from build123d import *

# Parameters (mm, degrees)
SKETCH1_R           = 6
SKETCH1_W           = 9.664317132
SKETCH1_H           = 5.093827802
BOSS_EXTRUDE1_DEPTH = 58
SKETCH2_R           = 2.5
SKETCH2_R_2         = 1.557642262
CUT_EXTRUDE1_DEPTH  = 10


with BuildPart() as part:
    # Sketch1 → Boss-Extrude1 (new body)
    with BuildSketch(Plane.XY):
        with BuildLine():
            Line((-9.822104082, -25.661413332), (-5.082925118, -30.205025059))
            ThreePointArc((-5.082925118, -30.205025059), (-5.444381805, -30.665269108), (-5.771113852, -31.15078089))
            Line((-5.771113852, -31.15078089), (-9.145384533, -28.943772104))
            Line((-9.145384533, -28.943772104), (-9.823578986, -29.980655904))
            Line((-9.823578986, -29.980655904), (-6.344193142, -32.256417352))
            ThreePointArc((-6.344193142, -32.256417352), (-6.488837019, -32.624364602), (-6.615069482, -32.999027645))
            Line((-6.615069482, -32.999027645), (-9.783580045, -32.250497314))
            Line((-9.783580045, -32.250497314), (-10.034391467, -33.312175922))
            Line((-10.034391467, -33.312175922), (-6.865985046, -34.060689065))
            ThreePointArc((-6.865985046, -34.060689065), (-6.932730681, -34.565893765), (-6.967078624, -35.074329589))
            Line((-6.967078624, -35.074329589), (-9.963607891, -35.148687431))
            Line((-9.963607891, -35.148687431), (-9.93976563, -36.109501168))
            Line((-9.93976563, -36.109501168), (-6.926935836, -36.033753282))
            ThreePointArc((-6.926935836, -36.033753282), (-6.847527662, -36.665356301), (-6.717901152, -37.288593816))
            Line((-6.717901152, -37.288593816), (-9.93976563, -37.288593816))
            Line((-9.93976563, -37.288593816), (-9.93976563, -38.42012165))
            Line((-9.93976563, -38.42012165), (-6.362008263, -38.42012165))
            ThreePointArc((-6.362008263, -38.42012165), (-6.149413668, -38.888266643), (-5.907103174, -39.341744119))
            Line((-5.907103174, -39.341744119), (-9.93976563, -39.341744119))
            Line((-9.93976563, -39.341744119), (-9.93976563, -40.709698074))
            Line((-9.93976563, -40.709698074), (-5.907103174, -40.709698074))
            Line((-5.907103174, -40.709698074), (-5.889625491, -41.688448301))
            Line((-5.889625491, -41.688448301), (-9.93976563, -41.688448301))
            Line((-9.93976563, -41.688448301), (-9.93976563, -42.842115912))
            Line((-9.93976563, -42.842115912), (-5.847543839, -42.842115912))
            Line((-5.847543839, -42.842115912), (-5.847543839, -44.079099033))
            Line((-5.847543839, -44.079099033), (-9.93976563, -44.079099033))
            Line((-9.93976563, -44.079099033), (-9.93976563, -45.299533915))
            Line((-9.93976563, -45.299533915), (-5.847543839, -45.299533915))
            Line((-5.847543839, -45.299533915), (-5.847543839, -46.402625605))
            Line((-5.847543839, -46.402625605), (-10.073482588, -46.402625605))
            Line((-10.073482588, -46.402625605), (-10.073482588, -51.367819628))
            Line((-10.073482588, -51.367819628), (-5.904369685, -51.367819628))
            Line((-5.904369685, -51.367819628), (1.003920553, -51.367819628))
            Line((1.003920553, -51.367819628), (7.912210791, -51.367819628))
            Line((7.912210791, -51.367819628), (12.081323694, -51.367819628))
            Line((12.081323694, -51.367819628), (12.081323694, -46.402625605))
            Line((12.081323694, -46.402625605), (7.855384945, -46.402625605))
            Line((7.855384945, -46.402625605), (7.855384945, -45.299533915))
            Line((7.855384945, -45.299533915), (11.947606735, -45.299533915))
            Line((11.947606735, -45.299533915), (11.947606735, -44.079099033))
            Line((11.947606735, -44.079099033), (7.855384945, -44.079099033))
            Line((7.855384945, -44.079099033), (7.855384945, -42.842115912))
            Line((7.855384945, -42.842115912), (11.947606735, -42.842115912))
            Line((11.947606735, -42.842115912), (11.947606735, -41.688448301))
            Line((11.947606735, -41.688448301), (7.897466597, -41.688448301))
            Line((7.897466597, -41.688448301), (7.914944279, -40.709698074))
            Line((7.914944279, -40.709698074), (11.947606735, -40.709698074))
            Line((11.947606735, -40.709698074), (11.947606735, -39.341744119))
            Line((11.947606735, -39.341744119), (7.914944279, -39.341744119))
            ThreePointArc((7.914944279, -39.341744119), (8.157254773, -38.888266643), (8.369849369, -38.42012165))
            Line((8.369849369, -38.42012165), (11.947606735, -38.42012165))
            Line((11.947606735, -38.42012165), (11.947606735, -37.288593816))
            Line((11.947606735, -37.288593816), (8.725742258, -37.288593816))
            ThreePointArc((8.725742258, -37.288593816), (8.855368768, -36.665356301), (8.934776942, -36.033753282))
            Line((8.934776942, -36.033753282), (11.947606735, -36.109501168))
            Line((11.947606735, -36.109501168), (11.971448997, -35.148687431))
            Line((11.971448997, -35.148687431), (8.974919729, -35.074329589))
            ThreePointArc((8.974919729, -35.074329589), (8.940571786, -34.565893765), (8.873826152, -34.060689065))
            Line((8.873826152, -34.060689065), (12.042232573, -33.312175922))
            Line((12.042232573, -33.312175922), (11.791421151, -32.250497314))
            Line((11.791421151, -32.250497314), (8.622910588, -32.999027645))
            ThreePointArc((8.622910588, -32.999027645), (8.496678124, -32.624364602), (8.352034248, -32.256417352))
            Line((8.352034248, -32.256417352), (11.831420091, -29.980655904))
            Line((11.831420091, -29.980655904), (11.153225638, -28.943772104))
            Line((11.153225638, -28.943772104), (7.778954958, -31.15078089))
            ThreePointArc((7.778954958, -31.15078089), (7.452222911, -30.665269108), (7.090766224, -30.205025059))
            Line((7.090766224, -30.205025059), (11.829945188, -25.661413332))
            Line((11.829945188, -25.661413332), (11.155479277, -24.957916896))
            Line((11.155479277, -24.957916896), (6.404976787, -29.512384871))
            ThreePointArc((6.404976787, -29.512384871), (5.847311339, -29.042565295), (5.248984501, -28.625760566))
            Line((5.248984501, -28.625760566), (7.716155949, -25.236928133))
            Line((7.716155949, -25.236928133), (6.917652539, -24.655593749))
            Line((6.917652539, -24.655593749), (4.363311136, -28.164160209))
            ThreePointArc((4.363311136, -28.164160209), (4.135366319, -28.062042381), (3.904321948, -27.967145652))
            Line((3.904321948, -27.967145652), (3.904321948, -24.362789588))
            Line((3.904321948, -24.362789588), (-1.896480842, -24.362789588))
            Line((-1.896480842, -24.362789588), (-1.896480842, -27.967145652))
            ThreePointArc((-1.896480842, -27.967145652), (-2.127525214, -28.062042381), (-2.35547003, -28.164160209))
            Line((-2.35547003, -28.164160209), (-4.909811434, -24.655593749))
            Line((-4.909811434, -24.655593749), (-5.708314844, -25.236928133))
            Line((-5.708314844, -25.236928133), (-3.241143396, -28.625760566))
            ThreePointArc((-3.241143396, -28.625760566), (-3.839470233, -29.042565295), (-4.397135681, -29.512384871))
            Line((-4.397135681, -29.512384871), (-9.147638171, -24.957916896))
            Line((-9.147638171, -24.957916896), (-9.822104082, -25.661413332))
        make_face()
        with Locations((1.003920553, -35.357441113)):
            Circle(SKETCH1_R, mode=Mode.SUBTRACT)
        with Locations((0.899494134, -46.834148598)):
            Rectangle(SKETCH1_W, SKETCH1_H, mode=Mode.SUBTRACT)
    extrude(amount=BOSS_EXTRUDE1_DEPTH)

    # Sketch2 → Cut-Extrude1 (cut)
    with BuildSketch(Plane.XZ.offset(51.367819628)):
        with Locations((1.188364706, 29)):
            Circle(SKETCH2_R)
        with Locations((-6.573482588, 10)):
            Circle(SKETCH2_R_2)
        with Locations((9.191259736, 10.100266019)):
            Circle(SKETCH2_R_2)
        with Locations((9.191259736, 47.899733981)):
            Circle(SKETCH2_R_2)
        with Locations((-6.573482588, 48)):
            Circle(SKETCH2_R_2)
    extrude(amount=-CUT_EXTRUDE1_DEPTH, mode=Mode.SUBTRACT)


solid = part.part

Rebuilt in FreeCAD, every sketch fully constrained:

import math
import FreeCAD as App
import Part
import Sketcher

doc = App.newDocument("Part")
body = doc.addObject("PartDesign::Body", "Body")

# Sketch on XY plane
sketch1 = doc.addObject("Sketcher::SketchObject", "Sketch")
body.addObject(sketch1)
sketch1.AttachmentSupport = (doc.XY_Plane, [""])
sketch1.MapMode = "FlatFace"
sketch1.addGeometry([
    Part.LineSegment(App.Vector(-9.82, -25.66, 0), App.Vector(-5.08, -30.21, 0)),  # 0
    Part.ArcOfCircle(Part.Circle(App.Vector(1, -35.36, 0), App.Vector(0, 0, 1), 7.97), math.radians(139.75), math.radians(148.16)),  # 1
    Part.LineSegment(App.Vector(-5.77, -31.15, 0), App.Vector(-9.15, -28.94, 0)),  # 2
    Part.LineSegment(App.Vector(-9.15, -28.94, 0), App.Vector(-9.82, -29.98, 0)),  # 3
    Part.LineSegment(App.Vector(-9.82, -29.98, 0), App.Vector(-6.34, -32.26, 0)),  # 4
    Part.ArcOfCircle(Part.Circle(App.Vector(1, -35.36, 0), App.Vector(0, 0, 1), 7.98), math.radians(157.12), math.radians(162.8)),  # 5
    Part.LineSegment(App.Vector(-6.62, -33, 0), App.Vector(-9.78, -32.25, 0)),  # 6
    Part.LineSegment(App.Vector(-9.78, -32.25, 0), App.Vector(-10.03, -33.31, 0)),  # 7
    Part.LineSegment(App.Vector(-10.03, -33.31, 0), App.Vector(-6.87, -34.06, 0)),  # 8
    Part.ArcOfCircle(Part.Circle(App.Vector(1, -35.36, 0), App.Vector(0, 0, 1), 7.98), math.radians(170.64), math.radians(177.97)),  # 9
    Part.LineSegment(App.Vector(-6.97, -35.07, 0), App.Vector(-9.96, -35.15, 0)),  # 10
    Part.LineSegment(App.Vector(-9.96, -35.15, 0), App.Vector(-9.94, -36.11, 0)),  # 11
    Part.LineSegment(App.Vector(-9.94, -36.11, 0), App.Vector(-6.93, -36.03, 0)),  # 12
    Part.ArcOfCircle(Part.Circle(App.Vector(1, -35.36, 0), App.Vector(0, 0, 1), 7.96), math.radians(-175.13), math.radians(-165.96)),  # 13
    Part.LineSegment(App.Vector(-6.72, -37.29, 0), App.Vector(-9.94, -37.29, 0)),  # 14
    Part.LineSegment(App.Vector(-9.94, -37.29, 0), App.Vector(-9.94, -38.42, 0)),  # 15
    Part.LineSegment(App.Vector(-9.94, -38.42, 0), App.Vector(-6.36, -38.42, 0)),  # 16
    Part.ArcOfCircle(Part.Circle(App.Vector(1, -35.36, 0), App.Vector(0, 0, 1), 7.98), math.radians(-157.42), math.radians(-150.04)),  # 17
    Part.LineSegment(App.Vector(-5.91, -39.34, 0), App.Vector(-9.94, -39.34, 0)),  # 18
    Part.LineSegment(App.Vector(-9.94, -39.34, 0), App.Vector(-9.94, -40.71, 0)),  # 19
    Part.LineSegment(App.Vector(-9.94, -40.71, 0), App.Vector(-5.91, -40.71, 0)),  # 20
    Part.LineSegment(App.Vector(-5.91, -40.71, 0), App.Vector(-5.89, -41.69, 0)),  # 21
    Part.LineSegment(App.Vector(-5.89, -41.69, 0), App.Vector(-9.94, -41.69, 0)),  # 22
    Part.LineSegment(App.Vector(-9.94, -41.69, 0), App.Vector(-9.94, -42.84, 0)),  # 23
    Part.LineSegment(App.Vector(-9.94, -42.84, 0), App.Vector(-5.85, -42.84, 0)),  # 24
    Part.LineSegment(App.Vector(-5.85, -42.84, 0), App.Vector(-5.85, -44.08, 0)),  # 25
    Part.LineSegment(App.Vector(-5.85, -44.08, 0), App.Vector(-9.94, -44.08, 0)),  # 26
    Part.LineSegment(App.Vector(-9.94, -44.08, 0), App.Vector(-9.94, -45.3, 0)),  # 27
    Part.LineSegment(App.Vector(-9.94, -45.3, 0), App.Vector(-5.85, -45.3, 0)),  # 28
    Part.LineSegment(App.Vector(-5.85, -45.3, 0), App.Vector(-5.85, -46.4, 0)),  # 29
    Part.LineSegment(App.Vector(-5.85, -46.4, 0), App.Vector(-10.07, -46.4, 0)),  # 30
    Part.LineSegment(App.Vector(-10.07, -46.4, 0), App.Vector(-10.07, -51.37, 0)),  # 31
    Part.LineSegment(App.Vector(-10.07, -51.37, 0), App.Vector(12.08, -51.37, 0)),  # 32
    Part.LineSegment(App.Vector(12.08, -51.37, 0), App.Vector(12.08, -46.4, 0)),  # 33
    Part.LineSegment(App.Vector(12.08, -46.4, 0), App.Vector(7.86, -46.4, 0)),  # 34
    Part.LineSegment(App.Vector(7.86, -46.4, 0), App.Vector(7.86, -45.3, 0)),  # 35
    Part.LineSegment(App.Vector(7.86, -45.3, 0), App.Vector(11.95, -45.3, 0)),  # 36
    Part.LineSegment(App.Vector(11.95, -45.3, 0), App.Vector(11.95, -44.08, 0)),  # 37
    Part.LineSegment(App.Vector(11.95, -44.08, 0), App.Vector(7.86, -44.08, 0)),  # 38
    Part.LineSegment(App.Vector(7.86, -44.08, 0), App.Vector(7.86, -42.84, 0)),  # 39
    Part.LineSegment(App.Vector(7.86, -42.84, 0), App.Vector(11.95, -42.84, 0)),  # 40
    Part.LineSegment(App.Vector(11.95, -42.84, 0), App.Vector(11.95, -41.69, 0)),  # 41
    Part.LineSegment(App.Vector(11.95, -41.69, 0), App.Vector(7.9, -41.69, 0)),  # 42
    Part.LineSegment(App.Vector(7.9, -41.69, 0), App.Vector(7.91, -40.71, 0)),  # 43
    Part.LineSegment(App.Vector(7.91, -40.71, 0), App.Vector(11.95, -40.71, 0)),  # 44
    Part.LineSegment(App.Vector(11.95, -40.71, 0), App.Vector(11.95, -39.34, 0)),  # 45
    Part.LineSegment(App.Vector(11.95, -39.34, 0), App.Vector(7.91, -39.34, 0)),  # 46
    Part.ArcOfCircle(Part.Circle(App.Vector(1, -35.36, 0), App.Vector(0, 0, 1), 7.98), math.radians(-29.96), math.radians(-22.58)),  # 47
    Part.LineSegment(App.Vector(8.37, -38.42, 0), App.Vector(11.95, -38.42, 0)),  # 48
    Part.LineSegment(App.Vector(11.95, -38.42, 0), App.Vector(11.95, -37.29, 0)),  # 49
    Part.LineSegment(App.Vector(11.95, -37.29, 0), App.Vector(8.73, -37.29, 0)),  # 50
    Part.ArcOfCircle(Part.Circle(App.Vector(1, -35.36, 0), App.Vector(0, 0, 1), 7.96), math.radians(-14.04), math.radians(-4.87)),  # 51
    Part.LineSegment(App.Vector(8.93, -36.03, 0), App.Vector(11.95, -36.11, 0)),  # 52
    Part.LineSegment(App.Vector(11.95, -36.11, 0), App.Vector(11.97, -35.15, 0)),  # 53
    Part.LineSegment(App.Vector(11.97, -35.15, 0), App.Vector(8.97, -35.07, 0)),  # 54
    Part.ArcOfCircle(Part.Circle(App.Vector(1, -35.36, 0), App.Vector(0, 0, 1), 7.98), math.radians(2.03), math.radians(9.36)),  # 55
    Part.LineSegment(App.Vector(8.87, -34.06, 0), App.Vector(12.04, -33.31, 0)),  # 56
    Part.LineSegment(App.Vector(12.04, -33.31, 0), App.Vector(11.79, -32.25, 0)),  # 57
    Part.LineSegment(App.Vector(11.79, -32.25, 0), App.Vector(8.62, -33, 0)),  # 58
    Part.ArcOfCircle(Part.Circle(App.Vector(1, -35.36, 0), App.Vector(0, 0, 1), 7.98), math.radians(17.2), math.radians(22.88)),  # 59
    Part.LineSegment(App.Vector(8.35, -32.26, 0), App.Vector(11.83, -29.98, 0)),  # 60
    Part.LineSegment(App.Vector(11.83, -29.98, 0), App.Vector(11.15, -28.94, 0)),  # 61
    Part.LineSegment(App.Vector(11.15, -28.94, 0), App.Vector(7.78, -31.15, 0)),  # 62
    Part.ArcOfCircle(Part.Circle(App.Vector(1, -35.36, 0), App.Vector(0, 0, 1), 7.97), math.radians(31.84), math.radians(40.25)),  # 63
    Part.LineSegment(App.Vector(7.09, -30.21, 0), App.Vector(11.83, -25.66, 0)),  # 64
    Part.LineSegment(App.Vector(11.83, -25.66, 0), App.Vector(11.16, -24.96, 0)),  # 65
    Part.LineSegment(App.Vector(11.16, -24.96, 0), App.Vector(6.4, -29.51, 0)),  # 66
    Part.ArcOfCircle(Part.Circle(App.Vector(1, -35.36, 0), App.Vector(0, 0, 1), 7.96), math.radians(47.26), math.radians(57.76)),  # 67
    Part.LineSegment(App.Vector(5.25, -28.63, 0), App.Vector(7.72, -25.24, 0)),  # 68
    Part.LineSegment(App.Vector(7.72, -25.24, 0), App.Vector(6.92, -24.66, 0)),  # 69
    Part.LineSegment(App.Vector(6.92, -24.66, 0), App.Vector(4.36, -28.16, 0)),  # 70
    Part.ArcOfCircle(Part.Circle(App.Vector(1, -35.36, 0), App.Vector(0, 0, 1), 7.94), math.radians(64.97), math.radians(68.57)),  # 71
    Part.LineSegment(App.Vector(3.9, -27.97, 0), App.Vector(3.9, -24.36, 0)),  # 72
    Part.LineSegment(App.Vector(3.9, -24.36, 0), App.Vector(-1.9, -24.36, 0)),  # 73
    Part.LineSegment(App.Vector(-1.9, -24.36, 0), App.Vector(-1.9, -27.97, 0)),  # 74
    Part.ArcOfCircle(Part.Circle(App.Vector(1, -35.36, 0), App.Vector(0, 0, 1), 7.94), math.radians(111.43), math.radians(115.03)),  # 75
    Part.LineSegment(App.Vector(-2.36, -28.16, 0), App.Vector(-4.91, -24.66, 0)),  # 76
    Part.LineSegment(App.Vector(-4.91, -24.66, 0), App.Vector(-5.71, -25.24, 0)),  # 77
    Part.LineSegment(App.Vector(-5.71, -25.24, 0), App.Vector(-3.24, -28.63, 0)),  # 78
    Part.ArcOfCircle(Part.Circle(App.Vector(1, -35.36, 0), App.Vector(0, 0, 1), 7.96), math.radians(122.24), math.radians(132.74)),  # 79
    Part.LineSegment(App.Vector(-4.4, -29.51, 0), App.Vector(-9.15, -24.96, 0)),  # 80
    Part.LineSegment(App.Vector(-9.15, -24.96, 0), App.Vector(-9.82, -25.66, 0)),  # 81
    Part.LineSegment(App.Vector(5.73, -49.38, 0), App.Vector(-3.93, -49.38, 0)),  # 82
    Part.LineSegment(App.Vector(-3.93, -49.38, 0), App.Vector(-3.93, -44.29, 0)),  # 83
    Part.LineSegment(App.Vector(-3.93, -44.29, 0), App.Vector(5.73, -44.29, 0)),  # 84
    Part.LineSegment(App.Vector(5.73, -44.29, 0), App.Vector(5.73, -49.38, 0)),  # 85
    Part.Circle(App.Vector(1, -35.36, 0), App.Vector(0, 0, 1), 6),  # 86
], False)
sketch1.addConstraint([
    Sketcher.Constraint("Coincident", 0, 2, 1, 1),
    Sketcher.Constraint("Coincident", 1, 2, 2, 1),
    Sketcher.Constraint("Coincident", 2, 2, 3, 1),
    Sketcher.Constraint("Coincident", 3, 2, 4, 1),
    Sketcher.Constraint("Coincident", 4, 2, 5, 1),
    Sketcher.Constraint("Coincident", 5, 2, 6, 1),
    Sketcher.Constraint("Coincident", 6, 2, 7, 1),
    Sketcher.Constraint("Coincident", 7, 2, 8, 1),
    Sketcher.Constraint("Coincident", 8, 2, 9, 1),
    Sketcher.Constraint("Coincident", 9, 2, 10, 1),
    Sketcher.Constraint("Coincident", 10, 2, 11, 1),
    Sketcher.Constraint("Coincident", 11, 2, 12, 1),
    Sketcher.Constraint("Coincident", 12, 2, 13, 1),
    Sketcher.Constraint("Coincident", 13, 2, 14, 1),
    Sketcher.Constraint("Coincident", 14, 2, 15, 1),
    Sketcher.Constraint("Coincident", 15, 2, 16, 1),
    Sketcher.Constraint("Coincident", 16, 2, 17, 1),
    Sketcher.Constraint("Coincident", 17, 2, 18, 1),
    Sketcher.Constraint("Coincident", 18, 2, 19, 1),
    Sketcher.Constraint("Coincident", 19, 2, 20, 1),
    Sketcher.Constraint("Coincident", 20, 2, 21, 1),
    Sketcher.Constraint("Coincident", 21, 2, 22, 1),
    Sketcher.Constraint("Coincident", 22, 2, 23, 1),
    Sketcher.Constraint("Coincident", 23, 2, 24, 1),
    Sketcher.Constraint("Coincident", 24, 2, 25, 1),
    Sketcher.Constraint("Coincident", 25, 2, 26, 1),
    Sketcher.Constraint("Coincident", 26, 2, 27, 1),
    Sketcher.Constraint("Coincident", 27, 2, 28, 1),
    Sketcher.Constraint("Coincident", 28, 2, 29, 1),
    Sketcher.Constraint("Coincident", 29, 2, 30, 1),
    Sketcher.Constraint("Coincident", 30, 2, 31, 1),
    Sketcher.Constraint("Coincident", 31, 2, 32, 1),
    Sketcher.Constraint("Coincident", 32, 2, 33, 1),
    Sketcher.Constraint("Coincident", 33, 2, 34, 1),
    Sketcher.Constraint("Coincident", 34, 2, 35, 1),
    Sketcher.Constraint("Coincident", 35, 2, 36, 1),
    Sketcher.Constraint("Coincident", 36, 2, 37, 1),
    Sketcher.Constraint("Coincident", 37, 2, 38, 1),
    Sketcher.Constraint("Coincident", 38, 2, 39, 1),
    Sketcher.Constraint("Coincident", 39, 2, 40, 1),
    Sketcher.Constraint("Coincident", 40, 2, 41, 1),
    Sketcher.Constraint("Coincident", 41, 2, 42, 1),
    Sketcher.Constraint("Coincident", 42, 2, 43, 1),
    Sketcher.Constraint("Coincident", 43, 2, 44, 1),
    Sketcher.Constraint("Coincident", 44, 2, 45, 1),
    Sketcher.Constraint("Coincident", 45, 2, 46, 1),
    Sketcher.Constraint("Coincident", 46, 2, 47, 1),
    Sketcher.Constraint("Coincident", 47, 2, 48, 1),
    Sketcher.Constraint("Coincident", 48, 2, 49, 1),
    Sketcher.Constraint("Coincident", 49, 2, 50, 1),
    Sketcher.Constraint("Coincident", 50, 2, 51, 1),
    Sketcher.Constraint("Coincident", 51, 2, 52, 1),
    Sketcher.Constraint("Coincident", 52, 2, 53, 1),
    Sketcher.Constraint("Coincident", 53, 2, 54, 1),
    Sketcher.Constraint("Coincident", 54, 2, 55, 1),
    Sketcher.Constraint("Coincident", 55, 2, 56, 1),
    Sketcher.Constraint("Coincident", 56, 2, 57, 1),
    Sketcher.Constraint("Coincident", 57, 2, 58, 1),
    Sketcher.Constraint("Coincident", 58, 2, 59, 1),
    Sketcher.Constraint("Coincident", 59, 2, 60, 1),
    Sketcher.Constraint("Coincident", 60, 2, 61, 1),
    Sketcher.Constraint("Coincident", 61, 2, 62, 1),
    Sketcher.Constraint("Coincident", 62, 2, 63, 1),
    Sketcher.Constraint("Coincident", 63, 2, 64, 1),
    Sketcher.Constraint("Coincident", 64, 2, 65, 1),
    Sketcher.Constraint("Coincident", 65, 2, 66, 1),
    Sketcher.Constraint("Coincident", 66, 2, 67, 1),
    Sketcher.Constraint("Coincident", 67, 2, 68, 1),
    Sketcher.Constraint("Coincident", 68, 2, 69, 1),
    Sketcher.Constraint("Coincident", 69, 2, 70, 1),
    Sketcher.Constraint("Coincident", 70, 2, 71, 1),
    Sketcher.Constraint("Coincident", 71, 2, 72, 1),
    Sketcher.Constraint("Coincident", 72, 2, 73, 1),
    Sketcher.Constraint("Coincident", 73, 2, 74, 1),
    Sketcher.Constraint("Coincident", 74, 2, 75, 1),
    Sketcher.Constraint("Coincident", 75, 2, 76, 1),
    Sketcher.Constraint("Coincident", 76, 2, 77, 1),
    Sketcher.Constraint("Coincident", 77, 2, 78, 1),
    Sketcher.Constraint("Coincident", 78, 2, 79, 1),
    Sketcher.Constraint("Coincident", 79, 2, 80, 1),
    Sketcher.Constraint("Coincident", 80, 2, 81, 1),
    Sketcher.Constraint("Coincident", 81, 2, 0, 1),
    Sketcher.Constraint("Coincident", 82, 2, 83, 1),
    Sketcher.Constraint("Coincident", 83, 2, 84, 1),
    Sketcher.Constraint("Coincident", 84, 2, 85, 1),
    Sketcher.Constraint("Coincident", 85, 2, 82, 1),
    Sketcher.Constraint("Horizontal", 14),
    Sketcher.Constraint("Vertical", 15),
    Sketcher.Constraint("Horizontal", 16),
    Sketcher.Constraint("Horizontal", 18),
    Sketcher.Constraint("Vertical", 19),
    Sketcher.Constraint("Horizontal", 20),
    Sketcher.Constraint("Horizontal", 22),
    Sketcher.Constraint("Vertical", 23),
    Sketcher.Constraint("Horizontal", 24),
    Sketcher.Constraint("Vertical", 25),
    Sketcher.Constraint("Horizontal", 26),
    Sketcher.Constraint("Vertical", 27),
    Sketcher.Constraint("Horizontal", 28),
    Sketcher.Constraint("Vertical", 29),
    Sketcher.Constraint("Horizontal", 30),
    Sketcher.Constraint("Vertical", 31),
    Sketcher.Constraint("Horizontal", 32),
    Sketcher.Constraint("Vertical", 33),
    Sketcher.Constraint("Horizontal", 34),
    Sketcher.Constraint("Vertical", 35),
    Sketcher.Constraint("Horizontal", 36),
    Sketcher.Constraint("Vertical", 37),
    Sketcher.Constraint("Horizontal", 38),
    Sketcher.Constraint("Vertical", 39),
    Sketcher.Constraint("Horizontal", 40),
    Sketcher.Constraint("Vertical", 41),
    Sketcher.Constraint("Horizontal", 42),
    Sketcher.Constraint("Horizontal", 44),
    Sketcher.Constraint("Vertical", 45),
    Sketcher.Constraint("Horizontal", 46),
    Sketcher.Constraint("Horizontal", 48),
    Sketcher.Constraint("Vertical", 49),
    Sketcher.Constraint("Horizontal", 50),
    Sketcher.Constraint("Vertical", 72),
    Sketcher.Constraint("Horizontal", 73),
    Sketcher.Constraint("Vertical", 74),
    Sketcher.Constraint("Horizontal", 82),
    Sketcher.Constraint("Vertical", 83),
    Sketcher.Constraint("Horizontal", 84),
    Sketcher.Constraint("Vertical", 85),
    Sketcher.Constraint("Coincident", 5, 3, 1, 3),
    Sketcher.Constraint("Coincident", 9, 3, 1, 3),
    Sketcher.Constraint("Coincident", 13, 3, 1, 3),
    Sketcher.Constraint("Coincident", 17, 3, 1, 3),
    Sketcher.Constraint("Coincident", 47, 3, 1, 3),
    Sketcher.Constraint("Coincident", 51, 3, 1, 3),
    Sketcher.Constraint("Coincident", 55, 3, 1, 3),
    Sketcher.Constraint("Coincident", 59, 3, 1, 3),
    Sketcher.Constraint("Coincident", 63, 3, 1, 3),
    Sketcher.Constraint("Coincident", 67, 3, 1, 3),
    Sketcher.Constraint("Coincident", 71, 3, 1, 3),
    Sketcher.Constraint("Coincident", 75, 3, 1, 3),
    Sketcher.Constraint("Coincident", 79, 3, 1, 3),
    Sketcher.Constraint("Coincident", 86, 3, 1, 3),
    Sketcher.Constraint("Equal", 17, 47),
    Sketcher.Constraint("Equal", 13, 51),
    Sketcher.Constraint("Equal", 9, 55),
    Sketcher.Constraint("Equal", 5, 59),
    Sketcher.Constraint("Equal", 1, 63),
    Sketcher.Constraint("Equal", 71, 75),
    Sketcher.Constraint("Equal", 67, 79),
    Sketcher.Constraint("Perpendicular", 2, 3),
    Sketcher.Constraint("Perpendicular", 3, 4),
    Sketcher.Constraint("Perpendicular", 6, 7),
    Sketcher.Constraint("Perpendicular", 10, 11),
    Sketcher.Constraint("Perpendicular", 53, 54),
    Sketcher.Constraint("Perpendicular", 57, 58),
    Sketcher.Constraint("Perpendicular", 60, 61),
    Sketcher.Constraint("Perpendicular", 61, 62),
    Sketcher.Constraint("Perpendicular", 64, 65),
    Sketcher.Constraint("Perpendicular", 65, 66),
    Sketcher.Constraint("Perpendicular", 68, 69),
    Sketcher.Constraint("Perpendicular", 69, 70),
    Sketcher.Constraint("Perpendicular", 76, 77),
    Sketcher.Constraint("Perpendicular", 77, 78),
    Sketcher.Constraint("Parallel", 0, 80),
    Sketcher.Constraint("Perpendicular", 80, 81),
    Sketcher.Constraint("Horizontal", 30, 2, 33, 2),
    Sketcher.Constraint("Horizontal", 28, 2, 35, 2),
    Sketcher.Constraint("Horizontal", 26, 2, 37, 2),
    Sketcher.Constraint("Horizontal", 24, 2, 39, 2),
    Sketcher.Constraint("Horizontal", 22, 2, 41, 2),
    Sketcher.Constraint("Horizontal", 20, 2, 43, 2),
    Sketcher.Constraint("Horizontal", 18, 2, 45, 2),
    Sketcher.Constraint("Horizontal", 16, 2, 47, 2),
    Sketcher.Constraint("Horizontal", 14, 2, 49, 2),
    Sketcher.Constraint("Horizontal", 12, 2, 51, 2),
    Sketcher.Constraint("Horizontal", 11, 2, 52, 2),
    Sketcher.Constraint("Horizontal", 10, 2, 53, 2),
    Sketcher.Constraint("Horizontal", 9, 2, 54, 2),
    Sketcher.Constraint("Horizontal", 8, 2, 55, 2),
    Sketcher.Constraint("Horizontal", 7, 2, 56, 2),
    Sketcher.Constraint("Horizontal", 6, 2, 57, 2),
    Sketcher.Constraint("Horizontal", 5, 2, 58, 2),
    Sketcher.Constraint("Horizontal", 4, 2, 59, 2),
    Sketcher.Constraint("Horizontal", 3, 2, 60, 2),
    Sketcher.Constraint("Horizontal", 2, 2, 61, 2),
    Sketcher.Constraint("Horizontal", 1, 2, 62, 2),
    Sketcher.Constraint("Horizontal", 0, 2, 63, 2),
    Sketcher.Constraint("Horizontal", 71, 2, 74, 2),
    Sketcher.Constraint("Horizontal", 70, 2, 75, 2),
    Sketcher.Constraint("Horizontal", 69, 2, 76, 2),
    Sketcher.Constraint("Horizontal", 68, 2, 77, 2),
    Sketcher.Constraint("Horizontal", 67, 2, 78, 2),
    Sketcher.Constraint("Horizontal", 66, 2, 79, 2),
    Sketcher.Constraint("Horizontal", 65, 2, 80, 2),
    Sketcher.Constraint("Horizontal", 64, 2, 81, 2),
    Sketcher.Constraint("Vertical", 11, 2, 14, 2),
    Sketcher.Constraint("Vertical", 15, 2, 18, 2),
    Sketcher.Constraint("Vertical", 17, 2, 20, 2),
    Sketcher.Constraint("Vertical", 19, 2, 22, 2),
    Sketcher.Constraint("Vertical", 23, 2, 26, 2),
    Sketcher.Constraint("Vertical", 25, 2, 28, 2),
    Sketcher.Constraint("Vertical", 35, 2, 38, 2),
    Sketcher.Constraint("Vertical", 37, 2, 40, 2),
    Sketcher.Constraint("Vertical", 41, 2, 44, 2),
    Sketcher.Constraint("Vertical", 43, 2, 46, 2),
    Sketcher.Constraint("Vertical", 45, 2, 48, 2),
    Sketcher.Constraint("Vertical", 49, 2, 52, 2),
    Sketcher.Constraint("Equal", 30, 34),
    Sketcher.Constraint("Equal", 28, 36),
    Sketcher.Constraint("Equal", 22, 42),
    Sketcher.Constraint("Equal", 20, 44),
    Sketcher.Constraint("Equal", 8, 56),
    Sketcher.Constraint("Diameter", 86, 12.0),
    Sketcher.Constraint("Radius", 13, 7.959641),
    Sketcher.Constraint("Radius", 59, 7.975659),
    Sketcher.Constraint("Radius", 71, 7.939069),
    Sketcher.Constraint("Radius", 1, 7.974778),
    Sketcher.Constraint("Radius", 9, 7.976025),
    Sketcher.Constraint("Radius", 17, 7.977275),
    Sketcher.Constraint("Radius", 67, 7.958398),
    Sketcher.Constraint("DistanceX", 22, 2, 22, 1, 4.05014),
    Sketcher.Constraint("DistanceX", 24, 1, 24, 2, 4.092222),
    Sketcher.Constraint("DistanceX", 30, 2, 30, 1, 4.225939),
    Sketcher.Constraint("DistanceY", 29, 2, 29, 1, 1.103092),
    Sketcher.Constraint("DistanceY", 11, 2, -1, 1, 36.109501),
    Sketcher.Constraint("DistanceX", 13, 2, -1, 1, 6.717901),
    Sketcher.Constraint("DistanceY", 19, 2, -1, 1, 40.709698),
    Sketcher.Constraint("DistanceY", 25, 2, -1, 1, 44.079099),
    Sketcher.Constraint("Distance", 0, 6.565381),
    Sketcher.Constraint("Distance", 3, 1.238982),
    Sketcher.Constraint("Distance", 4, 4.157549),
    Sketcher.Constraint("Distance", 8, 3.255621),
    Sketcher.Constraint("Distance", 10, 2.997452),
    Sketcher.Constraint("Distance", 11, 0.96111),
    Sketcher.Constraint("Distance", 12, 3.013782),
    Sketcher.Constraint("DistanceX", 14, 2, 14, 1, 3.221864),
    Sketcher.Constraint("DistanceX", 16, 1, 16, 2, 3.577757),
    Sketcher.Constraint("DistanceX", 18, 2, 18, 1, 4.032662),
    Sketcher.Constraint("DistanceX", 32, 1, 32, 2, 22.154806),
    Sketcher.Constraint("DistanceX", 73, 2, 73, 1, 5.800803),
    Sketcher.Constraint("DistanceX", 82, 2, 82, 1, 9.664317),
    Sketcher.Constraint("DistanceY", 19, 2, 19, 1, 1.367954),
    Sketcher.Constraint("DistanceY", 23, 2, 23, 1, 1.153668),
    Sketcher.Constraint("DistanceY", 25, 2, 25, 1, 1.236983),
    Sketcher.Constraint("DistanceY", 27, 2, 27, 1, 1.220435),
    Sketcher.Constraint("DistanceY", 31, 2, 31, 1, 4.965194),
    Sketcher.Constraint("DistanceY", 72, 1, 72, 2, 3.604356),
    Sketcher.Constraint("DistanceY", 83, 1, 83, 2, 5.093828),
    Sketcher.Constraint("DistanceY", 1, 2, -1, 1, 31.150781),
    Sketcher.Constraint("DistanceX", 3, 2, -1, 1, 9.823579),
    Sketcher.Constraint("DistanceX", 5, 2, -1, 1, 6.615069),
    Sketcher.Constraint("DistanceX", 6, 2, -1, 1, 9.78358),
    Sketcher.Constraint("DistanceX", 7, 2, -1, 1, 10.034391),
    Sketcher.Constraint("DistanceY", 8, 2, -1, 1, 34.060689),
    Sketcher.Constraint("DistanceX", -1, 1, 65, 2, 11.155479),
    Sketcher.Constraint("DistanceY", 67, 2, -1, 1, 28.625761),
    Sketcher.Constraint("DistanceY", 68, 2, -1, 1, 25.236928),
    Sketcher.Constraint("DistanceX", -1, 1, 70, 2, 4.363311),
    Sketcher.Constraint("DistanceX", 76, 2, -1, 1, 4.909811),
    Sketcher.Constraint("Distance", 65, 0.974583),
    Sketcher.Constraint("Distance", 66, 6.581068),
    Sketcher.Constraint("DistanceX", 82, 2, -1, 1, 3.932664),
    Sketcher.Constraint("DistanceY", 82, 2, -1, 1, 49.381062),
])
pad1 = doc.addObject("PartDesign::Pad", "Pad")
body.addObject(pad1)
pad1.Profile = sketch1
pad1.Length = 58

# Sketch on XZ plane
sketch2 = doc.addObject("Sketcher::SketchObject", "Sketch001")
body.addObject(sketch2)
sketch2.AttachmentSupport = (doc.XZ_Plane, [""])
sketch2.MapMode = "FlatFace"
sketch2.AttachmentOffset = App.Placement(App.Vector(0, 0, 51.36782), App.Rotation())
sketch2.addGeometry([
    Part.Circle(App.Vector(1.2, 29, 0), App.Vector(0, 0, 1), 2.5),  # 0
    Part.Circle(App.Vector(-6.6, 10, 0), App.Vector(0, 0, 1), 1.6),  # 1
    Part.Circle(App.Vector(9.2, 10.1, 0), App.Vector(0, 0, 1), 1.6),  # 2
    Part.Circle(App.Vector(9.2, 47.9, 0), App.Vector(0, 0, 1), 1.6),  # 3
    Part.Circle(App.Vector(-6.6, 48, 0), App.Vector(0, 0, 1), 1.6),  # 4
], False)
sketch2.addConstraint([
    Sketcher.Constraint("Equal", 1, 2),
    Sketcher.Constraint("Equal", 2, 3),
    Sketcher.Constraint("Equal", 3, 4),
    Sketcher.Constraint("Vertical", 2, 3, 3, 3),
    Sketcher.Constraint("Vertical", 1, 3, 4, 3),
    Sketcher.Constraint("Diameter", 0, 5.0),
    Sketcher.Constraint("DistanceY", -1, 1, 0, 3, 29.0),
    Sketcher.Constraint("DistanceY", -1, 1, 1, 3, 10.0),
    Sketcher.Constraint("DistanceY", -1, 1, 4, 3, 48.0),
    Sketcher.Constraint("Diameter", 1, 3.115285),
    Sketcher.Constraint("DistanceX", -1, 1, 2, 3, 9.19126),
    Sketcher.Constraint("DistanceX", -1, 1, 0, 3, 1.188365),
    Sketcher.Constraint("DistanceX", 1, 3, -1, 1, 6.573483),
    Sketcher.Constraint("DistanceY", -1, 1, 2, 3, 10.100266),
    Sketcher.Constraint("DistanceY", -1, 1, 3, 3, 47.899734),
])
pocket1 = doc.addObject("PartDesign::Pocket", "Pocket")
body.addObject(pocket1)
pocket1.Profile = sketch2
pocket1.Length = 10

doc.recompute()
